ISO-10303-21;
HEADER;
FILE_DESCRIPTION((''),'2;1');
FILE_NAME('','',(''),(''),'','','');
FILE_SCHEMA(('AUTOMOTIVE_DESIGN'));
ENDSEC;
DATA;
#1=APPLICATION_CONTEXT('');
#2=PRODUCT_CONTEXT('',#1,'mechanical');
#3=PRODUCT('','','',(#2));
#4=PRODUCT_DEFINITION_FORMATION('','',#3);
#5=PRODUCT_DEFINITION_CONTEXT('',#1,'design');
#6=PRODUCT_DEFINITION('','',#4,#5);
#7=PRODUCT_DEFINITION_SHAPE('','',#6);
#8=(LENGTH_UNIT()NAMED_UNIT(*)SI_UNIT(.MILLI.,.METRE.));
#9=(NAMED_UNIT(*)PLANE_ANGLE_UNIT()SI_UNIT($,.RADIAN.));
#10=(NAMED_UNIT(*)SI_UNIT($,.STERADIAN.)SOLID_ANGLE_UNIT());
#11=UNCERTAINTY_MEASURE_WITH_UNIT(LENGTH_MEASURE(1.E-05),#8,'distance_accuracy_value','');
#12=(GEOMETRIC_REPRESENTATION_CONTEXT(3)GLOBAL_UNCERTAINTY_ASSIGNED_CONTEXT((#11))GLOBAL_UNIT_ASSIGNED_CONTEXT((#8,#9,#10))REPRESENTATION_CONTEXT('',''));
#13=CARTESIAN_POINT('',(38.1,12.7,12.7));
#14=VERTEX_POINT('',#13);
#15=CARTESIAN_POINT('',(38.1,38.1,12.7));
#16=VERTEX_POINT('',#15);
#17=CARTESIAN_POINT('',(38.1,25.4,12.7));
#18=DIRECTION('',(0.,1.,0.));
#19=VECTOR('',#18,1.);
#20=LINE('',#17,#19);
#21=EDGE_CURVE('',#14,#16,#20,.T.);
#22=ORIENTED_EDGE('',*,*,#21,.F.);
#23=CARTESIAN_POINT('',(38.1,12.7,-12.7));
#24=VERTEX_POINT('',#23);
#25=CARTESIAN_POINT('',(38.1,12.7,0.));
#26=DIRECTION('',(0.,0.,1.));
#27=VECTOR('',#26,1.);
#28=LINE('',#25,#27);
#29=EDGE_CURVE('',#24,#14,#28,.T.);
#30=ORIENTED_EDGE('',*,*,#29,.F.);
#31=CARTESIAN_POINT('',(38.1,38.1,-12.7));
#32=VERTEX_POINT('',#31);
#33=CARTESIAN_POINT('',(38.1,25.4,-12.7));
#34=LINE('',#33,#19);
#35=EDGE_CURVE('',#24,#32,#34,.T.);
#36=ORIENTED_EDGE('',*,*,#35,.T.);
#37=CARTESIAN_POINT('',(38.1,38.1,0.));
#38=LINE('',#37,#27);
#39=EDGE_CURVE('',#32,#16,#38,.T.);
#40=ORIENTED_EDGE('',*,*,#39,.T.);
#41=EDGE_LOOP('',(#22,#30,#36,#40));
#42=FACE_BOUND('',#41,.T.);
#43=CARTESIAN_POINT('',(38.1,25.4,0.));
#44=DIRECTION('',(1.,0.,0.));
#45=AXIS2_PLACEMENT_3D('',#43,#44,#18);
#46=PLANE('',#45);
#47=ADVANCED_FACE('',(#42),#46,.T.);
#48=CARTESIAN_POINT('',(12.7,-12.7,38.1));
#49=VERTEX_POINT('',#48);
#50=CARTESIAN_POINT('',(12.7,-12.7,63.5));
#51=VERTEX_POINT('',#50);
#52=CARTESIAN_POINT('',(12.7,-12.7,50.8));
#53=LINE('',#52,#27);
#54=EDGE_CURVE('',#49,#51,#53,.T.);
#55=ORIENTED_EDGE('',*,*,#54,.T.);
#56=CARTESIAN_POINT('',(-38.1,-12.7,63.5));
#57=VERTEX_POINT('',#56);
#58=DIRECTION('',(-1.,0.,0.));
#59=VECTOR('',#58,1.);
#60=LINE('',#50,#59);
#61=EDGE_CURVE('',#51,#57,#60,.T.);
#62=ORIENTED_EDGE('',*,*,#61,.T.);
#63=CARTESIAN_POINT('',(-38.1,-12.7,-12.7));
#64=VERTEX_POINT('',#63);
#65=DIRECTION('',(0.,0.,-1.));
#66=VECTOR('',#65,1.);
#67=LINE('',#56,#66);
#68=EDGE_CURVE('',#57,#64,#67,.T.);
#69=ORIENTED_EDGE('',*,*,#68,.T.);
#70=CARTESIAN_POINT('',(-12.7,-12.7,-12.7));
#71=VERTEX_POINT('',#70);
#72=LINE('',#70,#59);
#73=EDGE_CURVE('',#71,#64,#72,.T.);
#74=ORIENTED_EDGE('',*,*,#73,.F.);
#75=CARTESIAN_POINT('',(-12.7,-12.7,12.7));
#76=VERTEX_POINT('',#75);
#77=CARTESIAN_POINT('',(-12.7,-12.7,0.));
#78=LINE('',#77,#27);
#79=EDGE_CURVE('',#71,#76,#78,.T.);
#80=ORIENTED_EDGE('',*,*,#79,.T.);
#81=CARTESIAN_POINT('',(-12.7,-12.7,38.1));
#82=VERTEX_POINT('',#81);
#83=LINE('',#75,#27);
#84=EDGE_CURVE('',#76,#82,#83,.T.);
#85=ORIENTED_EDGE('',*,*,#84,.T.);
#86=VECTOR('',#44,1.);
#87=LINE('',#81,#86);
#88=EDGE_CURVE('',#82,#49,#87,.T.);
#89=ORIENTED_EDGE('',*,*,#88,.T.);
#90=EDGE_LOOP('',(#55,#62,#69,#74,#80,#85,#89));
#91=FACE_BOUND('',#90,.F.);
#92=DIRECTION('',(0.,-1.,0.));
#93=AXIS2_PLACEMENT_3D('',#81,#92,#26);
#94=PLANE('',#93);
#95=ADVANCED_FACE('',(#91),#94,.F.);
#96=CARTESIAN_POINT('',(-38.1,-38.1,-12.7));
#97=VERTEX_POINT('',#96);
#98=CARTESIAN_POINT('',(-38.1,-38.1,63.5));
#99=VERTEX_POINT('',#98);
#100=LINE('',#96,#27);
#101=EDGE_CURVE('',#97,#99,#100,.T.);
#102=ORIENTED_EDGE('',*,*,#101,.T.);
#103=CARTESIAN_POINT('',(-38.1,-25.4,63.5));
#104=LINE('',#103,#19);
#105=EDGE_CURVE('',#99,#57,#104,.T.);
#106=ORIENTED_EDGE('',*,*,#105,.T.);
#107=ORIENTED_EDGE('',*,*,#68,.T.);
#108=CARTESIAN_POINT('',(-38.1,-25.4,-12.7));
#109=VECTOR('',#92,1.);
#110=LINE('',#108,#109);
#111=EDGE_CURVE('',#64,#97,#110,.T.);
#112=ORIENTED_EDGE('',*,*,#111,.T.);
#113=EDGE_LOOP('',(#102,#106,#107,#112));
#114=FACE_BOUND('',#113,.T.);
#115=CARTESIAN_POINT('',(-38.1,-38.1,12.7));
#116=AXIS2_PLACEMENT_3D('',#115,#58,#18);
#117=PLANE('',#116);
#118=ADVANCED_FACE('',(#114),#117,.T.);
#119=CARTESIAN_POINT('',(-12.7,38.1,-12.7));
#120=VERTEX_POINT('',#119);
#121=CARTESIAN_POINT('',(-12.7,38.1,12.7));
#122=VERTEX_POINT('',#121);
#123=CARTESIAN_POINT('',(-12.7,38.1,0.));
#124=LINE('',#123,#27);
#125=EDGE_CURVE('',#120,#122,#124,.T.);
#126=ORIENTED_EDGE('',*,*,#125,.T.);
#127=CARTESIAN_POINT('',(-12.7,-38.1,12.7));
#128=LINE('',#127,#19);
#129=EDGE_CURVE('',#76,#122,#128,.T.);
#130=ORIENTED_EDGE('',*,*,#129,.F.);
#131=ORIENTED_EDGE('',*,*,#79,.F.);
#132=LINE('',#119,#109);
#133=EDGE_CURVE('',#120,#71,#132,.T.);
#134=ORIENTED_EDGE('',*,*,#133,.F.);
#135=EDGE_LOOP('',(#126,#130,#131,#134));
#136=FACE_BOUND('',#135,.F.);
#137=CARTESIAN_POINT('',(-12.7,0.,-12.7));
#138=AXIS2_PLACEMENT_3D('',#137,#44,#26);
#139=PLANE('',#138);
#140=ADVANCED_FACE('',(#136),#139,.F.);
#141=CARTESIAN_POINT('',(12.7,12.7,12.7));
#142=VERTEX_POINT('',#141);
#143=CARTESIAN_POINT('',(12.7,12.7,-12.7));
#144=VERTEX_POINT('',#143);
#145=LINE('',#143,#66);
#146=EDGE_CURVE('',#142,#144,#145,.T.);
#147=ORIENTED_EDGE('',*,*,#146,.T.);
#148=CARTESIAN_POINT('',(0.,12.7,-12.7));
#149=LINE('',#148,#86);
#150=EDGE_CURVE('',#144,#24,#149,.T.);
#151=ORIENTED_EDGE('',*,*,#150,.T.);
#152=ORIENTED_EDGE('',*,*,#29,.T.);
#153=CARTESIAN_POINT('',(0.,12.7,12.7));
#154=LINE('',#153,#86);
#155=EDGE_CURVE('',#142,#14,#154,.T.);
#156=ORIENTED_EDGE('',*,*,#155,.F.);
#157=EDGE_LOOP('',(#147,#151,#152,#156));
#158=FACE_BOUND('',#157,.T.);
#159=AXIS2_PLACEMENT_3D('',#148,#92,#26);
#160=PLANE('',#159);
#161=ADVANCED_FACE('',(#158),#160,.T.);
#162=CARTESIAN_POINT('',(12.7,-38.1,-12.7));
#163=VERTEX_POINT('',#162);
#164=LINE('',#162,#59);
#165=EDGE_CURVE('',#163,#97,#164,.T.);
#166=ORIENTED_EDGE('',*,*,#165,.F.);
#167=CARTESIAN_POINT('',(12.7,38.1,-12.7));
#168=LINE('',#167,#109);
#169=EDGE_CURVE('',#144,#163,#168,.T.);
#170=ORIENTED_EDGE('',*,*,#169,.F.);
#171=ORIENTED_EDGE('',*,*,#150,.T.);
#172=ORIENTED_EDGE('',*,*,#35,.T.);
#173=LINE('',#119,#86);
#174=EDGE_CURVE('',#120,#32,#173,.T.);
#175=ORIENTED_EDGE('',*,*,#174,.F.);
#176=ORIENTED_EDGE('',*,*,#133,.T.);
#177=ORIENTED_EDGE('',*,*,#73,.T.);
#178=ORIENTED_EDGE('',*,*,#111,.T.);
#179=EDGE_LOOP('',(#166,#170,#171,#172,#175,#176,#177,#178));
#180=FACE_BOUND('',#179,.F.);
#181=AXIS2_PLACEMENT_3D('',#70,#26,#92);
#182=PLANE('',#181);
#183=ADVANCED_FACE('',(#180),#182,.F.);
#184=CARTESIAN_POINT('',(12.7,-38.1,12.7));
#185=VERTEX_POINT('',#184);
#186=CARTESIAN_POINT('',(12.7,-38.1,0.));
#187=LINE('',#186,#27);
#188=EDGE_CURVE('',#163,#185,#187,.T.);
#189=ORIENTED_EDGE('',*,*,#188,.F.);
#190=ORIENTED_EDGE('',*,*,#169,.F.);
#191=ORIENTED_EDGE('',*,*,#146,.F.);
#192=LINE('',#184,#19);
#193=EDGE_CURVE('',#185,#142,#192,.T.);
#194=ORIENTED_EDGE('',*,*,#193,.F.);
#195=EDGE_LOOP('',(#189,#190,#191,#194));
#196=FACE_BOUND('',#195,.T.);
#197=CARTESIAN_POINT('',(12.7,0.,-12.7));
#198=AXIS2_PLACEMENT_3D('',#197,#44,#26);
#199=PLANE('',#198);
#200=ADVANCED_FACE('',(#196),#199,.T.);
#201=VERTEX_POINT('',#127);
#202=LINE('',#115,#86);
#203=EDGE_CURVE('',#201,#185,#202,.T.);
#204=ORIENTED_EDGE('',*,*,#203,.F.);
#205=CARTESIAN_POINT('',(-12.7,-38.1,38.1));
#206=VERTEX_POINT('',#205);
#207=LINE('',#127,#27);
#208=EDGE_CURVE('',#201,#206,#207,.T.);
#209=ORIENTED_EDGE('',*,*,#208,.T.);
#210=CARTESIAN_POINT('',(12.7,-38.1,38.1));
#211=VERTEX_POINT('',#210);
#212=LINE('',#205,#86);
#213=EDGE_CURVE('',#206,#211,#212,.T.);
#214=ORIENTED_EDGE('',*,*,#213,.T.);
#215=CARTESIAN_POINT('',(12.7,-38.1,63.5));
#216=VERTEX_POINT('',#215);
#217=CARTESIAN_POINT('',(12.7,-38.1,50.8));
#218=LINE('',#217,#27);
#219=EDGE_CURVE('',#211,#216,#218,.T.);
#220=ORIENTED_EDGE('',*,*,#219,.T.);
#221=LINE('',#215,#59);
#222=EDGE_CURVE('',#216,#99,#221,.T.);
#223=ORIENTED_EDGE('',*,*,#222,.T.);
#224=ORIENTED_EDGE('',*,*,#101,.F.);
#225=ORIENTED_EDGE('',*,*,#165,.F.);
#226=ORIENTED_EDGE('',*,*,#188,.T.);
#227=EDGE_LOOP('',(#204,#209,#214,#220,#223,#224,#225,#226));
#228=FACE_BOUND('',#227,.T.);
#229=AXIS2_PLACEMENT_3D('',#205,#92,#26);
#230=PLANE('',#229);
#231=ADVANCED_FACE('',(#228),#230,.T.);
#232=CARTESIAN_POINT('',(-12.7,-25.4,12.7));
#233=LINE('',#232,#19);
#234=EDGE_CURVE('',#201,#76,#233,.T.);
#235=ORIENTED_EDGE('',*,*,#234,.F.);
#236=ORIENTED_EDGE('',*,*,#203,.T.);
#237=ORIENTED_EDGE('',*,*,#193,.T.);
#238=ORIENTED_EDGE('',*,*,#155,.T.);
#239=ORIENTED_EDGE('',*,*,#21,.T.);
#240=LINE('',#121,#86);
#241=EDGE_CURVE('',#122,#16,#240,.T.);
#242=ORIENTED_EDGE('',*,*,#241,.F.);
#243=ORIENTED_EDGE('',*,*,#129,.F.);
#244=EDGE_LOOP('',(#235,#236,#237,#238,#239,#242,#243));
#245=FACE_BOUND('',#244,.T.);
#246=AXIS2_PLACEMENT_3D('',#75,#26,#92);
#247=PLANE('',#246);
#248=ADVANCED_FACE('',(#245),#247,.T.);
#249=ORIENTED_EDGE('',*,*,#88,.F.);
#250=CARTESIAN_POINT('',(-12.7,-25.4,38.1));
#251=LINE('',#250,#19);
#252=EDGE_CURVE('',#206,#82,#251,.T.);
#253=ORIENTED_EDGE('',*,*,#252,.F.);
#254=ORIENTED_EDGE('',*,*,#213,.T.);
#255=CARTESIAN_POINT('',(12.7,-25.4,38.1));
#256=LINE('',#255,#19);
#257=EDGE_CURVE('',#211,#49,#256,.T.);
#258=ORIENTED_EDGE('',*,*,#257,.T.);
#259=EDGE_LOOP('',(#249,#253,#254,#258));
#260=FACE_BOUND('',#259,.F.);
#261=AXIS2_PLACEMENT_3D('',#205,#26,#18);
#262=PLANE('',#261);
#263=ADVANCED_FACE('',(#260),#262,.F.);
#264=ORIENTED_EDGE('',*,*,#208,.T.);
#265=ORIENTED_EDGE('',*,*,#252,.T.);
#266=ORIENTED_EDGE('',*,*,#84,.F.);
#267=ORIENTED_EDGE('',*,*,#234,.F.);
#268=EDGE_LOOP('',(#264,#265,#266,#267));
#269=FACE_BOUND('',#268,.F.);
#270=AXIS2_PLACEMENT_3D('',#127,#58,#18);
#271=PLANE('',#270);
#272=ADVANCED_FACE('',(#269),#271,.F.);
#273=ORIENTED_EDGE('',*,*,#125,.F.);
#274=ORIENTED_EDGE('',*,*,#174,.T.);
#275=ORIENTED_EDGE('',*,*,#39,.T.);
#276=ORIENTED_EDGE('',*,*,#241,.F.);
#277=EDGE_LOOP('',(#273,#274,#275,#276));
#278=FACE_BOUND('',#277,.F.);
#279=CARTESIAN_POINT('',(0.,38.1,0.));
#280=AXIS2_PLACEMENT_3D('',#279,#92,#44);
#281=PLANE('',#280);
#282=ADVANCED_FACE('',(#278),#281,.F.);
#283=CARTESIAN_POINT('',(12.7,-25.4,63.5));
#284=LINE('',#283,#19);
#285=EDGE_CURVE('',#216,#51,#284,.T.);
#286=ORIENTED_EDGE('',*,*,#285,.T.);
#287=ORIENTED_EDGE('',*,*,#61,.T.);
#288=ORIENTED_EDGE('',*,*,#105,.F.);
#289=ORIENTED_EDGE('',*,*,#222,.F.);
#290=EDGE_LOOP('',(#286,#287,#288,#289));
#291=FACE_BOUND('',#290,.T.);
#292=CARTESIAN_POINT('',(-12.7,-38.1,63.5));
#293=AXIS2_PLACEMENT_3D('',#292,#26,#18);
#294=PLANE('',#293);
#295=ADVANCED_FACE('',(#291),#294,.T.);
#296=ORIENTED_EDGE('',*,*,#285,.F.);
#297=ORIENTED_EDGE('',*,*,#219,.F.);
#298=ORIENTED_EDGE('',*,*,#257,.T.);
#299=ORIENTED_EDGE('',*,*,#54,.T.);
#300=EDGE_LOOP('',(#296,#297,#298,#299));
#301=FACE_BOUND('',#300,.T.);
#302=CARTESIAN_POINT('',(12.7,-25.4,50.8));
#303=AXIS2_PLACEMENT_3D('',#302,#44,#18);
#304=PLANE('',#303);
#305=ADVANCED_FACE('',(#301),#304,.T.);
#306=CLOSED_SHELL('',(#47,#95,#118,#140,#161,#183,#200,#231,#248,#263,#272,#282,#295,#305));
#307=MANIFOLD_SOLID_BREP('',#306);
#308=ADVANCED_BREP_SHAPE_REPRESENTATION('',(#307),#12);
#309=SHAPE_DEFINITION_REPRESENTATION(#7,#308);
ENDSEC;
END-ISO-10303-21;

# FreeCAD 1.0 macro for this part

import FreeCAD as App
import Part
import Sketcher

V = App.Vector
Q = App.Units.Quantity

doc = App.newDocument("Part")
body = doc.addObject("PartDesign::Body", "Body")

# Sketch on XZ plane
sketch1 = body.newObject("Sketcher::SketchObject", "Sketch")
sketch1.AttachmentSupport = (doc.getObject("XZ_Plane"), [""])
sketch1.MapMode = "FlatFace"
sketch1.addGeometry([
    Part.LineSegment(V(-12.7, 12.7, 0), V(-12.7, -12.7, 0)),
    Part.LineSegment(V(-12.7, -12.7, 0), V(12.7, -12.7, 0)),
    Part.LineSegment(V(12.7, -12.7, 0), V(12.7, 12.7, 0)),
    Part.LineSegment(V(12.7, 12.7, 0), V(-12.7, 12.7, 0)),
], False)
sketch1.addConstraint([
    Sketcher.Constraint("Coincident", 0, 2, 1, 1),
    Sketcher.Constraint("Coincident", 1, 2, 2, 1),
    Sketcher.Constraint("Coincident", 2, 2, 3, 1),
    Sketcher.Constraint("Coincident", 3, 2, 0, 1),
    Sketcher.Constraint("Vertical", 0),
    Sketcher.Constraint("Horizontal", 1),
    Sketcher.Constraint("Vertical", 2),
    Sketcher.Constraint("Horizontal", 3),
    Sketcher.Constraint("Symmetric", 0, 2, 2, 2, -1, 1),
    Sketcher.Constraint("Equal", 3, 0),
    Sketcher.Constraint("DistanceX", 1, 1, 1, 2, Q("1 in")),
])
pad1 = body.newObject("PartDesign::Pad", "Pad")
pad1.Profile = sketch1
pad1.Length = Q("3 in")
pad1.Midplane = True

# Sketch on YZ plane
sketch2 = body.newObject("Sketcher::SketchObject", "Sketch001")
sketch2.AttachmentSupport = (doc.getObject("YZ_Plane"), [""])
sketch2.MapMode = "FlatFace"
sketch2.addGeometry([
    Part.LineSegment(V(12.7, 12.7, 0), V(12.7, -12.7, 0)),
    Part.LineSegment(V(12.7, -12.7, 0), V(38.1, -12.7, 0)),
    Part.LineSegment(V(38.1, -12.7, 0), V(38.1, 12.7, 0)),
    Part.LineSegment(V(38.1, 12.7, 0), V(12.7, 12.7, 0)),
], False)
sketch2.addConstraint([
    Sketcher.Constraint("Coincident", 0, 2, 1, 1),
    Sketcher.Constraint("Coincident", 1, 2, 2, 1),
    Sketcher.Constraint("Coincident", 2, 2, 3, 1),
    Sketcher.Constraint("Coincident", 3, 2, 0, 1),
    Sketcher.Constraint("Vertical", 0),
    Sketcher.Constraint("Horizontal", 1),
    Sketcher.Constraint("Vertical", 2),
    Sketcher.Constraint("Horizontal", 3),
    Sketcher.Constraint("Equal", 3, 0),
    Sketcher.Constraint("DistanceX", 1, 1, 1, 2, Q("1 in")),
    Sketcher.Constraint("DistanceX", -1, 1, 0, 2, Q("0.5 in")),
    Sketcher.Constraint("DistanceY", 0, 2, -1, 1, Q("0.5 in")),
])
pad2 = body.newObject("PartDesign::Pad", "Pad001")
pad2.Profile = sketch2
pad2.Length = Q("1.5 in")

# Sketch on YZ plane
sketch3 = body.newObject("Sketcher::SketchObject", "Sketch002")
sketch3.AttachmentSupport = (doc.getObject("YZ_Plane"), [""])
sketch3.MapMode = "FlatFace"
sketch3.AttachmentOffset = App.Placement(V(0, 0, -0.5 * 25.4), App.Rotation())
sketch3.addGeometry([
    Part.LineSegment(V(-12.7, 12.7, 0), V(-12.7, -12.7, 0)),
    Part.LineSegment(V(-12.7, -12.7, 0), V(-38.1, -12.7, 0)),
    Part.LineSegment(V(-38.1, -12.7, 0), V(-38.1, 12.7, 0)),
    Part.LineSegment(V(-38.1, 12.7, 0), V(-12.7, 12.7, 0)),
], False)
sketch3.addConstraint([
    Sketcher.Constraint("Coincident", 0, 2, 1, 1),
    Sketcher.Constraint("Coincident", 1, 2, 2, 1),
    Sketcher.Constraint("Coincident", 2, 2, 3, 1),
    Sketcher.Constraint("Coincident", 3, 2, 0, 1),
    Sketcher.Constraint("Vertical", 0),
    Sketcher.Constraint("Horizontal", 1),
    Sketcher.Constraint("Vertical", 2),
    Sketcher.Constraint("Horizontal", 3),
    Sketcher.Constraint("Equal", 3, 0),
    Sketcher.Constraint("DistanceX", 1, 2, 1, 1, Q("1 in")),
    Sketcher.Constraint("DistanceX", 0, 2, -1, 1, Q("0.5 in")),
    Sketcher.Constraint("DistanceY", 0, 2, -1, 1, Q("0.5 in")),
])
pad3 = body.newObject("PartDesign::Pad", "Pad002")
pad3.Profile = sketch3
pad3.Length = Q("1 in")
pad3.Reversed = True

# Sketch on XY plane
sketch4 = body.newObject("Sketcher::SketchObject", "Sketch003")
sketch4.AttachmentSupport = (doc.getObject("XY_Plane"), [""])
sketch4.MapMode = "FlatFace"
sketch4.AttachmentOffset = App.Placement(V(0, 0, 0.5 * 25.4), App.Rotation())
sketch4.addGeometry([
    Part.LineSegment(V(-38.1, -12.7, 0), V(-38.1, -38.1, 0)),
    Part.LineSegment(V(-38.1, -38.1, 0), V(-12.7, -38.1, 0)),
    Part.LineSegment(V(-12.7, -38.1, 0), V(-12.7, -12.7, 0)),
    Part.LineSegment(V(-12.7, -12.7, 0), V(-38.1, -12.7, 0)),
], False)
sketch4.addConstraint([
    Sketcher.Constraint("Coincident", 0, 2, 1, 1),
    Sketcher.Constraint("Coincident", 1, 2, 2, 1),
    Sketcher.Constraint("Coincident", 2, 2, 3, 1),
    Sketcher.Constraint("Coincident", 3, 2, 0, 1),
    Sketcher.Constraint("Vertical", 0),
    Sketcher.Constraint("Horizontal", 1),
    Sketcher.Constraint("Vertical", 2),
    Sketcher.Constraint("Horizontal", 3),
    Sketcher.Constraint("Equal", 3, 0),
    Sketcher.Constraint("DistanceX", 1, 1, 1, 2, Q("1 in")),
    Sketcher.Constraint("DistanceX", 0, 2, -1, 1, Q("1.5 in")),
    Sketcher.Constraint("DistanceY", 0, 2, -1, 1, Q("1.5 in")),
])
pad4 = body.newObject("PartDesign::Pad", "Pad003")
pad4.Profile = sketch4
pad4.Length = Q("2 in")

# Sketch on YZ plane
sketch5 = body.newObject("Sketcher::SketchObject", "Sketch004")
sketch5.AttachmentSupport = (doc.getObject("YZ_Plane"), [""])
sketch5.MapMode = "FlatFace"
sketch5.AttachmentOffset = App.Placement(V(0, 0, -0.5 * 25.4), App.Rotation())
sketch5.addGeometry([
    Part.LineSegment(V(-38.1, 63.5, 0), V(-38.1, 38.1, 0)),
    Part.LineSegment(V(-38.1, 38.1, 0), V(-12.7, 38.1, 0)),
    Part.LineSegment(V(-12.7, 38.1, 0), V(-12.7, 63.5, 0)),
    Part.LineSegment(V(-12.7, 63.5, 0), V(-38.1, 63.5, 0)),
], False)
sketch5.addConstraint([
    Sketcher.Constraint("Coincident", 0, 2, 1, 1),
    Sketcher.Constraint("Coincident", 1, 2, 2, 1),
    Sketcher.Constraint("Coincident", 2, 2, 3, 1),
    Sketcher.Constraint("Coincident", 3, 2, 0, 1),
    Sketcher.Constraint("Vertical", 0),
    Sketcher.Constraint("Horizontal", 1),
    Sketcher.Constraint("Vertical", 2),
    Sketcher.Constraint("Horizontal", 3),
    Sketcher.Constraint("Equal", 3, 0),
    Sketcher.Constraint("DistanceX", 1, 1, 1, 2, Q("1 in")),
    Sketcher.Constraint("DistanceX", 0, 2, -1, 1, Q("1.5 in")),
    Sketcher.Constraint("DistanceY", -1, 1, 0, 2, Q("1.5 in")),
])
pad5 = body.newObject("PartDesign::Pad", "Pad004")
pad5.Profile = sketch5
pad5.Length = Q("1 in")

doc.recompute()
